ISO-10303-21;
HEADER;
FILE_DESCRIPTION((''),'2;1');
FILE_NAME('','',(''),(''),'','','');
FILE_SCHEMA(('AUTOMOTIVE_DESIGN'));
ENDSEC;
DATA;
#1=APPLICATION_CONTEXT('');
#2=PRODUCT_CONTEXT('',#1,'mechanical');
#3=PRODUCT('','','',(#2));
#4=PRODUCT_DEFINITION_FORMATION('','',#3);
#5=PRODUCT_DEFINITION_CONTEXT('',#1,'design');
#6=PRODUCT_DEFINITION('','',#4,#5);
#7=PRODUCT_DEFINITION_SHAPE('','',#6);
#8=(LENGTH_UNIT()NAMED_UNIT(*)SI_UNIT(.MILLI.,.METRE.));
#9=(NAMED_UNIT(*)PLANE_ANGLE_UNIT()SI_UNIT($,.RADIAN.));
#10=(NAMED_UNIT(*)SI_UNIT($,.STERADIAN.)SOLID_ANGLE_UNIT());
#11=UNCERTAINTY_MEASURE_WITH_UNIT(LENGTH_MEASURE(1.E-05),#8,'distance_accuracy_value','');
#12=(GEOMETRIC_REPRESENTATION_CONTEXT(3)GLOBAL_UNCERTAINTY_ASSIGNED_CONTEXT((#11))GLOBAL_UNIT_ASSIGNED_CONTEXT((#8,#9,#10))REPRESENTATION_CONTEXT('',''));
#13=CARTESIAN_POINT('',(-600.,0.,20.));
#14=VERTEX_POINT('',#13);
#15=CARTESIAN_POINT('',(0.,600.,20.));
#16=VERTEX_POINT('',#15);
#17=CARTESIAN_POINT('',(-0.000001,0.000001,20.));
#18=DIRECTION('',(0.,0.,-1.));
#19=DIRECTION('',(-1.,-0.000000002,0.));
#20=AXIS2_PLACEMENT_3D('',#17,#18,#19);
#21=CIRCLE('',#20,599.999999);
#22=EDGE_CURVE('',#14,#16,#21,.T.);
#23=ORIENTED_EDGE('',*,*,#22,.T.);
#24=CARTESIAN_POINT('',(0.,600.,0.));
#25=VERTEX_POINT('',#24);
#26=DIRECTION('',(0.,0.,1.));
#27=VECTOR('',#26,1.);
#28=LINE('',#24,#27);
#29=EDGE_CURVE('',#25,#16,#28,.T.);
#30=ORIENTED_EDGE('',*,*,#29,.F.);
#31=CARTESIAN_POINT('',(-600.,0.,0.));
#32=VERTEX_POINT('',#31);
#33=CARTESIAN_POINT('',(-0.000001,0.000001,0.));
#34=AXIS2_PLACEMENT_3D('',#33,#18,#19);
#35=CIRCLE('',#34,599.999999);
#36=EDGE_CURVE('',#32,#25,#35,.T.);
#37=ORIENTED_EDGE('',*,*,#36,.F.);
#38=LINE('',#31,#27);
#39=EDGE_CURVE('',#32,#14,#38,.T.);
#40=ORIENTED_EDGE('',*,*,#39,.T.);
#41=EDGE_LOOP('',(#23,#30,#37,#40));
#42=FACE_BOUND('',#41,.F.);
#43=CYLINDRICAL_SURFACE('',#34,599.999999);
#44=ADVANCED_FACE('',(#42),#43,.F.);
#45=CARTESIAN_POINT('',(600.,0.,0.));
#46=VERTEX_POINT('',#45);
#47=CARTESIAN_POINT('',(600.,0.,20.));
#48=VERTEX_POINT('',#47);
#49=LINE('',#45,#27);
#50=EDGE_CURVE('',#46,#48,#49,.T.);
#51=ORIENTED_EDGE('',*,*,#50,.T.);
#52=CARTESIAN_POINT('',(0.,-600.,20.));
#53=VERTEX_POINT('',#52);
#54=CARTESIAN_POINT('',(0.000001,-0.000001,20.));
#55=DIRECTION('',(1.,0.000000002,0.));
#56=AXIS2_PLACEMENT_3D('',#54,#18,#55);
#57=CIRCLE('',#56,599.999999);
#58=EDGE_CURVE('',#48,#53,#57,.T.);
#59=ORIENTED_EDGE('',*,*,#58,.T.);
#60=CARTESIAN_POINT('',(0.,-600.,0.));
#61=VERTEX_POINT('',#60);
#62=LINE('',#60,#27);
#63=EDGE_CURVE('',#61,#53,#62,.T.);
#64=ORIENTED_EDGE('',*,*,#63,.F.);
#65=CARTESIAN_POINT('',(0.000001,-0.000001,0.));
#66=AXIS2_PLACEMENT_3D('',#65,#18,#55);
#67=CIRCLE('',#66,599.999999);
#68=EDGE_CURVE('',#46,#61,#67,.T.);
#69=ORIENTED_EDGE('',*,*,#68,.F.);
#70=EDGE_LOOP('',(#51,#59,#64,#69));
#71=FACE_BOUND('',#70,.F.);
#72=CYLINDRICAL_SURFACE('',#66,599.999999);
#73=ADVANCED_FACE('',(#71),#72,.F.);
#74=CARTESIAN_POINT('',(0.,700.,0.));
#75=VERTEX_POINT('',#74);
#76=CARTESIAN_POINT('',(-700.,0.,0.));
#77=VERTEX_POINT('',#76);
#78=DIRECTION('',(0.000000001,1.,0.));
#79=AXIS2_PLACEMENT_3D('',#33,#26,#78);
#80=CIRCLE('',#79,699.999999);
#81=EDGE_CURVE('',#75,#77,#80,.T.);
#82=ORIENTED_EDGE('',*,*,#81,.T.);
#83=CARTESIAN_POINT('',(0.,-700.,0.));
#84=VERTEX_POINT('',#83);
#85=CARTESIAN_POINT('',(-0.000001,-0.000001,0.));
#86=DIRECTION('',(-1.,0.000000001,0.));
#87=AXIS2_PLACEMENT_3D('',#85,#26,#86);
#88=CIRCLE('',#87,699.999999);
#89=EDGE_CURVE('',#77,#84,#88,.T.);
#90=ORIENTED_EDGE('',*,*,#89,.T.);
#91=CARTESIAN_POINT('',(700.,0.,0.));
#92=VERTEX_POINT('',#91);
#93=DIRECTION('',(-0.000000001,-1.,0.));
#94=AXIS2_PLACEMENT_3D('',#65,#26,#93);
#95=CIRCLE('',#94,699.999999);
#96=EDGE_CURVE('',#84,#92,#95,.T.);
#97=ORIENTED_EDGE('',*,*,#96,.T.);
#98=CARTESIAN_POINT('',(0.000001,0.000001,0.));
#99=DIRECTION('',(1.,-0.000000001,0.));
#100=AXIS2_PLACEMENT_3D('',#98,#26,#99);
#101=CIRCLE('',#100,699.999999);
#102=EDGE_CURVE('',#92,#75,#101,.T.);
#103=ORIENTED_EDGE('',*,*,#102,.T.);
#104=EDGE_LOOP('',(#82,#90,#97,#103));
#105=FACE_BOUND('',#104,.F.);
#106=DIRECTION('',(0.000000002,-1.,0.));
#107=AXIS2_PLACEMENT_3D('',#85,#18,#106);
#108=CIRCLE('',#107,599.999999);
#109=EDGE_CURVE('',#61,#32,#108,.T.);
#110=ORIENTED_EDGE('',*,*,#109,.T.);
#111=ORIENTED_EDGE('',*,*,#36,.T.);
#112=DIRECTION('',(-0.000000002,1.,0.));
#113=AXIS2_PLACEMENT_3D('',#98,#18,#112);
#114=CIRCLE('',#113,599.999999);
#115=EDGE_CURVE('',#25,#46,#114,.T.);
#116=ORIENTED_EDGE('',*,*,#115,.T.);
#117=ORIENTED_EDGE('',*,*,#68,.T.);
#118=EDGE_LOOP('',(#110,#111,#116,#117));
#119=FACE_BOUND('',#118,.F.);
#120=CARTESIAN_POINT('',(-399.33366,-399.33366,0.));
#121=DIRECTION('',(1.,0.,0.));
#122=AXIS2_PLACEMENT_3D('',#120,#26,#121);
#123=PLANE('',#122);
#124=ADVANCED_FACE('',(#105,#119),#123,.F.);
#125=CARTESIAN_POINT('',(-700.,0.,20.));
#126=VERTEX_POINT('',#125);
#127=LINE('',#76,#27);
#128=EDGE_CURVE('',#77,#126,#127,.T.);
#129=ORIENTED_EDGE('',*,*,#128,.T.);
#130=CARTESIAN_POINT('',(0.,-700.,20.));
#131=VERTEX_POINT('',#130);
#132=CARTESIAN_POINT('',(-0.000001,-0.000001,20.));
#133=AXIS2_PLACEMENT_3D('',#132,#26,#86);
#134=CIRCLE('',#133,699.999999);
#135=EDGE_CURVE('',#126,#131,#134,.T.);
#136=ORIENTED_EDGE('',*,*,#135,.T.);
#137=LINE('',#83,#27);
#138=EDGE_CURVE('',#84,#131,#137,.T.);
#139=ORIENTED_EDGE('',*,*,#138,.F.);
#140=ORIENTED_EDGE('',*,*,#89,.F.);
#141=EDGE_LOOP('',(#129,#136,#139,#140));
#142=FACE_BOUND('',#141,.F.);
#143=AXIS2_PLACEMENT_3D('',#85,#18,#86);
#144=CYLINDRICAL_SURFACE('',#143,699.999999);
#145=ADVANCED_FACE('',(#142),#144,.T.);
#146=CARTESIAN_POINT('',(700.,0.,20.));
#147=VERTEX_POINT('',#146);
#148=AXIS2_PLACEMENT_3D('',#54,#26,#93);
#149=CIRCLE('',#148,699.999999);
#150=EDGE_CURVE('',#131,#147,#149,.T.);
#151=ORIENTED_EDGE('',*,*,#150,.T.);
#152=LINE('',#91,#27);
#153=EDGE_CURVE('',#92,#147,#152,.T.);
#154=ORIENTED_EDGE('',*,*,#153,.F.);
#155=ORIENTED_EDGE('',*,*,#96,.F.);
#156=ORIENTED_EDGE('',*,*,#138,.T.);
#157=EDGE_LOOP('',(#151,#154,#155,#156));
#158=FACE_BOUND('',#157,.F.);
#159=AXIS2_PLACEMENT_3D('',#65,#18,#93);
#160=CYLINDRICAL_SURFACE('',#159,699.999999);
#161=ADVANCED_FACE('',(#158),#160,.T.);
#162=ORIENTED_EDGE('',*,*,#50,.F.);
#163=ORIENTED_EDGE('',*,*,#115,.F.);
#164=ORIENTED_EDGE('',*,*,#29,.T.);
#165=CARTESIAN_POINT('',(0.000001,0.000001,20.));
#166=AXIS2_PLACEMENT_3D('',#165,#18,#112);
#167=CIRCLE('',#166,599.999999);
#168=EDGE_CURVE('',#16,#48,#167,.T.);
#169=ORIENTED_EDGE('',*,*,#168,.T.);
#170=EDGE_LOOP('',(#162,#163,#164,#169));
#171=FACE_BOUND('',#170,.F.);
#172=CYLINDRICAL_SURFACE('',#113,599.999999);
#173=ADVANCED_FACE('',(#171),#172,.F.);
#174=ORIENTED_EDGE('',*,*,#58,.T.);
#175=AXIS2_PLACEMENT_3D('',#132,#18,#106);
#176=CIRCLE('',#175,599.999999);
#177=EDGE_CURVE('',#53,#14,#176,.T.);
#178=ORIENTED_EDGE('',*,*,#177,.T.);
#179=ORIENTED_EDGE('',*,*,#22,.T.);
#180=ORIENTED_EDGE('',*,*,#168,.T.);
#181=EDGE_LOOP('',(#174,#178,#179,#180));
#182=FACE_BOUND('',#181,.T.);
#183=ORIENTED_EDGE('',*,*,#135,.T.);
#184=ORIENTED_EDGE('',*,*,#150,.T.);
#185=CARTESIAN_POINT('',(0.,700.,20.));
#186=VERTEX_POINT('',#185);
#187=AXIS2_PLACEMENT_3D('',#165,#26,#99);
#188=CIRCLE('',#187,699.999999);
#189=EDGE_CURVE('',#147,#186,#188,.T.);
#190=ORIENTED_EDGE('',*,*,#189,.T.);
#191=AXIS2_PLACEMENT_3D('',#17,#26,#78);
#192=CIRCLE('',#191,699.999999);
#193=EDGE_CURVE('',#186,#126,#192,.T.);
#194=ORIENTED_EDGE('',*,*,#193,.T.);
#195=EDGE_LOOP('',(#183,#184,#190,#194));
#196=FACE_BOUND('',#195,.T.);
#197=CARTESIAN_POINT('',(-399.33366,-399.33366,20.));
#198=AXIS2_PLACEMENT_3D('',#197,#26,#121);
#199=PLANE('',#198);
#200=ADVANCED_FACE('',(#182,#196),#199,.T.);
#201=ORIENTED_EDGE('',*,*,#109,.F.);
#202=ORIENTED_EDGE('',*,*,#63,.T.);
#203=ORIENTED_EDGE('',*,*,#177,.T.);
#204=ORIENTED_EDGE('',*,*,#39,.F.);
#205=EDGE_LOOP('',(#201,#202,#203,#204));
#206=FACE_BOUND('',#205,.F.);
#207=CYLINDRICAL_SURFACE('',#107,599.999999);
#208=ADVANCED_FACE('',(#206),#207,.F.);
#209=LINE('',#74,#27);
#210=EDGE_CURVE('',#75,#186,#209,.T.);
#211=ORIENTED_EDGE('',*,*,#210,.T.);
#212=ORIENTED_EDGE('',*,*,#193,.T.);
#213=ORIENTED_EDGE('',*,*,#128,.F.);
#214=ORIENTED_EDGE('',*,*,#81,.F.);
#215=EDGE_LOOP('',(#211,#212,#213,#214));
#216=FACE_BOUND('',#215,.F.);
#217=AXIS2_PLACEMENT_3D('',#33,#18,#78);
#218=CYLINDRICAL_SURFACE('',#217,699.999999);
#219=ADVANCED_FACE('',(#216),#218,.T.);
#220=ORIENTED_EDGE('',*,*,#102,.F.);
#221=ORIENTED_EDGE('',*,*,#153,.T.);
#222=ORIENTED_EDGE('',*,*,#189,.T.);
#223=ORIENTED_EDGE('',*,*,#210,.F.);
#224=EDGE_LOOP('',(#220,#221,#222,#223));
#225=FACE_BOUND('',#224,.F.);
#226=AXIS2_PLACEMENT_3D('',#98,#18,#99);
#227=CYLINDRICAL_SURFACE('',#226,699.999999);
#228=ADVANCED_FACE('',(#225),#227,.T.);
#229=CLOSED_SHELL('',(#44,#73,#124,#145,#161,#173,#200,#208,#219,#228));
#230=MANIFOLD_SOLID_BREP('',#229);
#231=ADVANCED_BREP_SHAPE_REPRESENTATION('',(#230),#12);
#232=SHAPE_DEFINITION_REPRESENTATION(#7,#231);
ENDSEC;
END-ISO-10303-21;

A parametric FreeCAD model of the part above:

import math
import FreeCAD as App
import Part
import Sketcher
from FreeCAD import Vector
Q = App.Units.Quantity

doc = App.newDocument("Part")
body = doc.addObject("PartDesign::Body", "Body")

# Sketch on XY plane
sketch1 = body.newObject("Sketcher::SketchObject", "Sketch")
sketch1.AttachmentSupport = (doc.getObject("XY_Plane"), [""])
sketch1.MapMode = "FlatFace"
sketch1.addGeometry([
    Part.ArcOfCircle(Part.Circle(Vector(0, 0, 0), Vector(0, 0, 1), 700), math.radians(90), math.radians(180)),  # 0
    Part.ArcOfCircle(Part.Circle(Vector(0, 0, 0), Vector(0, 0, 1), 700), math.radians(180), math.radians(270)),  # 1
    Part.ArcOfCircle(Part.Circle(Vector(0, 0, 0), Vector(0, 0, 1), 700), math.radians(-90), math.radians(0)),  # 2
    Part.ArcOfCircle(Part.Circle(Vector(0, 0, 0), Vector(0, 0, 1), 700), math.radians(0), math.radians(90)),  # 3
    Part.ArcOfCircle(Part.Circle(Vector(0, 0, 0), Vector(0, 0, 1), 600), math.radians(180), math.radians(270)),  # 4
    Part.ArcOfCircle(Part.Circle(Vector(0, 0, 0), Vector(0, 0, 1), 600), math.radians(90), math.radians(180)),  # 5
    Part.ArcOfCircle(Part.Circle(Vector(0, 0, 0), Vector(0, 0, 1), 600), math.radians(0), math.radians(90)),  # 6
    Part.ArcOfCircle(Part.Circle(Vector(0, 0, 0), Vector(0, 0, 1), 600), math.radians(-90), math.radians(0)),  # 7
], False)
sketch1.addConstraint([
    Sketcher.Constraint("Coincident", 0, 2, 1, 1),
    Sketcher.Constraint("Coincident", 1, 2, 2, 1),
    Sketcher.Constraint("Coincident", 2, 2, 3, 1),
    Sketcher.Constraint("Coincident", 3, 2, 0, 1),
    Sketcher.Constraint("Coincident", 4, 1, 5, 2),
    Sketcher.Constraint("Coincident", 5, 1, 6, 2),
    Sketcher.Constraint("Coincident", 6, 1, 7, 2),
    Sketcher.Constraint("Coincident", 7, 1, 4, 2),
    Sketcher.Constraint("Coincident", 0, 3, -1, 1),
    Sketcher.Constraint("Coincident", 1, 3, -1, 1),
    Sketcher.Constraint("Coincident", 2, 3, -1, 1),
    Sketcher.Constraint("Coincident", 4, 3, -1, 1),
    Sketcher.Constraint("Coincident", 5, 3, -1, 1),
    Sketcher.Constraint("Coincident", 6, 3, -1, 1),
    Sketcher.Constraint("Equal", 2, 3),
    Sketcher.Constraint("Equal", 6, 7),
    Sketcher.Constraint("PointOnObject", 0, 2, -1),
    Sketcher.Constraint("PointOnObject", 1, 2, -2),
    Sketcher.Constraint("PointOnObject", 2, 2, -1),
    Sketcher.Constraint("PointOnObject", 3, 2, -2),
    Sketcher.Constraint("PointOnObject", 4, 1, -1),
    Sketcher.Constraint("PointOnObject", 5, 1, -2),
    Sketcher.Constraint("PointOnObject", 6, 1, -1),
    Sketcher.Constraint("PointOnObject", 7, 1, -2),
    Sketcher.Constraint("Radius", 0, Q("699.999999 mm")),
    Sketcher.Constraint("Radius", 4, Q("599.999999 mm")),
])
pad1 = body.newObject("PartDesign::Pad", "Pad")
pad1.Profile = sketch1
pad1.Length = 20

doc.recompute()
